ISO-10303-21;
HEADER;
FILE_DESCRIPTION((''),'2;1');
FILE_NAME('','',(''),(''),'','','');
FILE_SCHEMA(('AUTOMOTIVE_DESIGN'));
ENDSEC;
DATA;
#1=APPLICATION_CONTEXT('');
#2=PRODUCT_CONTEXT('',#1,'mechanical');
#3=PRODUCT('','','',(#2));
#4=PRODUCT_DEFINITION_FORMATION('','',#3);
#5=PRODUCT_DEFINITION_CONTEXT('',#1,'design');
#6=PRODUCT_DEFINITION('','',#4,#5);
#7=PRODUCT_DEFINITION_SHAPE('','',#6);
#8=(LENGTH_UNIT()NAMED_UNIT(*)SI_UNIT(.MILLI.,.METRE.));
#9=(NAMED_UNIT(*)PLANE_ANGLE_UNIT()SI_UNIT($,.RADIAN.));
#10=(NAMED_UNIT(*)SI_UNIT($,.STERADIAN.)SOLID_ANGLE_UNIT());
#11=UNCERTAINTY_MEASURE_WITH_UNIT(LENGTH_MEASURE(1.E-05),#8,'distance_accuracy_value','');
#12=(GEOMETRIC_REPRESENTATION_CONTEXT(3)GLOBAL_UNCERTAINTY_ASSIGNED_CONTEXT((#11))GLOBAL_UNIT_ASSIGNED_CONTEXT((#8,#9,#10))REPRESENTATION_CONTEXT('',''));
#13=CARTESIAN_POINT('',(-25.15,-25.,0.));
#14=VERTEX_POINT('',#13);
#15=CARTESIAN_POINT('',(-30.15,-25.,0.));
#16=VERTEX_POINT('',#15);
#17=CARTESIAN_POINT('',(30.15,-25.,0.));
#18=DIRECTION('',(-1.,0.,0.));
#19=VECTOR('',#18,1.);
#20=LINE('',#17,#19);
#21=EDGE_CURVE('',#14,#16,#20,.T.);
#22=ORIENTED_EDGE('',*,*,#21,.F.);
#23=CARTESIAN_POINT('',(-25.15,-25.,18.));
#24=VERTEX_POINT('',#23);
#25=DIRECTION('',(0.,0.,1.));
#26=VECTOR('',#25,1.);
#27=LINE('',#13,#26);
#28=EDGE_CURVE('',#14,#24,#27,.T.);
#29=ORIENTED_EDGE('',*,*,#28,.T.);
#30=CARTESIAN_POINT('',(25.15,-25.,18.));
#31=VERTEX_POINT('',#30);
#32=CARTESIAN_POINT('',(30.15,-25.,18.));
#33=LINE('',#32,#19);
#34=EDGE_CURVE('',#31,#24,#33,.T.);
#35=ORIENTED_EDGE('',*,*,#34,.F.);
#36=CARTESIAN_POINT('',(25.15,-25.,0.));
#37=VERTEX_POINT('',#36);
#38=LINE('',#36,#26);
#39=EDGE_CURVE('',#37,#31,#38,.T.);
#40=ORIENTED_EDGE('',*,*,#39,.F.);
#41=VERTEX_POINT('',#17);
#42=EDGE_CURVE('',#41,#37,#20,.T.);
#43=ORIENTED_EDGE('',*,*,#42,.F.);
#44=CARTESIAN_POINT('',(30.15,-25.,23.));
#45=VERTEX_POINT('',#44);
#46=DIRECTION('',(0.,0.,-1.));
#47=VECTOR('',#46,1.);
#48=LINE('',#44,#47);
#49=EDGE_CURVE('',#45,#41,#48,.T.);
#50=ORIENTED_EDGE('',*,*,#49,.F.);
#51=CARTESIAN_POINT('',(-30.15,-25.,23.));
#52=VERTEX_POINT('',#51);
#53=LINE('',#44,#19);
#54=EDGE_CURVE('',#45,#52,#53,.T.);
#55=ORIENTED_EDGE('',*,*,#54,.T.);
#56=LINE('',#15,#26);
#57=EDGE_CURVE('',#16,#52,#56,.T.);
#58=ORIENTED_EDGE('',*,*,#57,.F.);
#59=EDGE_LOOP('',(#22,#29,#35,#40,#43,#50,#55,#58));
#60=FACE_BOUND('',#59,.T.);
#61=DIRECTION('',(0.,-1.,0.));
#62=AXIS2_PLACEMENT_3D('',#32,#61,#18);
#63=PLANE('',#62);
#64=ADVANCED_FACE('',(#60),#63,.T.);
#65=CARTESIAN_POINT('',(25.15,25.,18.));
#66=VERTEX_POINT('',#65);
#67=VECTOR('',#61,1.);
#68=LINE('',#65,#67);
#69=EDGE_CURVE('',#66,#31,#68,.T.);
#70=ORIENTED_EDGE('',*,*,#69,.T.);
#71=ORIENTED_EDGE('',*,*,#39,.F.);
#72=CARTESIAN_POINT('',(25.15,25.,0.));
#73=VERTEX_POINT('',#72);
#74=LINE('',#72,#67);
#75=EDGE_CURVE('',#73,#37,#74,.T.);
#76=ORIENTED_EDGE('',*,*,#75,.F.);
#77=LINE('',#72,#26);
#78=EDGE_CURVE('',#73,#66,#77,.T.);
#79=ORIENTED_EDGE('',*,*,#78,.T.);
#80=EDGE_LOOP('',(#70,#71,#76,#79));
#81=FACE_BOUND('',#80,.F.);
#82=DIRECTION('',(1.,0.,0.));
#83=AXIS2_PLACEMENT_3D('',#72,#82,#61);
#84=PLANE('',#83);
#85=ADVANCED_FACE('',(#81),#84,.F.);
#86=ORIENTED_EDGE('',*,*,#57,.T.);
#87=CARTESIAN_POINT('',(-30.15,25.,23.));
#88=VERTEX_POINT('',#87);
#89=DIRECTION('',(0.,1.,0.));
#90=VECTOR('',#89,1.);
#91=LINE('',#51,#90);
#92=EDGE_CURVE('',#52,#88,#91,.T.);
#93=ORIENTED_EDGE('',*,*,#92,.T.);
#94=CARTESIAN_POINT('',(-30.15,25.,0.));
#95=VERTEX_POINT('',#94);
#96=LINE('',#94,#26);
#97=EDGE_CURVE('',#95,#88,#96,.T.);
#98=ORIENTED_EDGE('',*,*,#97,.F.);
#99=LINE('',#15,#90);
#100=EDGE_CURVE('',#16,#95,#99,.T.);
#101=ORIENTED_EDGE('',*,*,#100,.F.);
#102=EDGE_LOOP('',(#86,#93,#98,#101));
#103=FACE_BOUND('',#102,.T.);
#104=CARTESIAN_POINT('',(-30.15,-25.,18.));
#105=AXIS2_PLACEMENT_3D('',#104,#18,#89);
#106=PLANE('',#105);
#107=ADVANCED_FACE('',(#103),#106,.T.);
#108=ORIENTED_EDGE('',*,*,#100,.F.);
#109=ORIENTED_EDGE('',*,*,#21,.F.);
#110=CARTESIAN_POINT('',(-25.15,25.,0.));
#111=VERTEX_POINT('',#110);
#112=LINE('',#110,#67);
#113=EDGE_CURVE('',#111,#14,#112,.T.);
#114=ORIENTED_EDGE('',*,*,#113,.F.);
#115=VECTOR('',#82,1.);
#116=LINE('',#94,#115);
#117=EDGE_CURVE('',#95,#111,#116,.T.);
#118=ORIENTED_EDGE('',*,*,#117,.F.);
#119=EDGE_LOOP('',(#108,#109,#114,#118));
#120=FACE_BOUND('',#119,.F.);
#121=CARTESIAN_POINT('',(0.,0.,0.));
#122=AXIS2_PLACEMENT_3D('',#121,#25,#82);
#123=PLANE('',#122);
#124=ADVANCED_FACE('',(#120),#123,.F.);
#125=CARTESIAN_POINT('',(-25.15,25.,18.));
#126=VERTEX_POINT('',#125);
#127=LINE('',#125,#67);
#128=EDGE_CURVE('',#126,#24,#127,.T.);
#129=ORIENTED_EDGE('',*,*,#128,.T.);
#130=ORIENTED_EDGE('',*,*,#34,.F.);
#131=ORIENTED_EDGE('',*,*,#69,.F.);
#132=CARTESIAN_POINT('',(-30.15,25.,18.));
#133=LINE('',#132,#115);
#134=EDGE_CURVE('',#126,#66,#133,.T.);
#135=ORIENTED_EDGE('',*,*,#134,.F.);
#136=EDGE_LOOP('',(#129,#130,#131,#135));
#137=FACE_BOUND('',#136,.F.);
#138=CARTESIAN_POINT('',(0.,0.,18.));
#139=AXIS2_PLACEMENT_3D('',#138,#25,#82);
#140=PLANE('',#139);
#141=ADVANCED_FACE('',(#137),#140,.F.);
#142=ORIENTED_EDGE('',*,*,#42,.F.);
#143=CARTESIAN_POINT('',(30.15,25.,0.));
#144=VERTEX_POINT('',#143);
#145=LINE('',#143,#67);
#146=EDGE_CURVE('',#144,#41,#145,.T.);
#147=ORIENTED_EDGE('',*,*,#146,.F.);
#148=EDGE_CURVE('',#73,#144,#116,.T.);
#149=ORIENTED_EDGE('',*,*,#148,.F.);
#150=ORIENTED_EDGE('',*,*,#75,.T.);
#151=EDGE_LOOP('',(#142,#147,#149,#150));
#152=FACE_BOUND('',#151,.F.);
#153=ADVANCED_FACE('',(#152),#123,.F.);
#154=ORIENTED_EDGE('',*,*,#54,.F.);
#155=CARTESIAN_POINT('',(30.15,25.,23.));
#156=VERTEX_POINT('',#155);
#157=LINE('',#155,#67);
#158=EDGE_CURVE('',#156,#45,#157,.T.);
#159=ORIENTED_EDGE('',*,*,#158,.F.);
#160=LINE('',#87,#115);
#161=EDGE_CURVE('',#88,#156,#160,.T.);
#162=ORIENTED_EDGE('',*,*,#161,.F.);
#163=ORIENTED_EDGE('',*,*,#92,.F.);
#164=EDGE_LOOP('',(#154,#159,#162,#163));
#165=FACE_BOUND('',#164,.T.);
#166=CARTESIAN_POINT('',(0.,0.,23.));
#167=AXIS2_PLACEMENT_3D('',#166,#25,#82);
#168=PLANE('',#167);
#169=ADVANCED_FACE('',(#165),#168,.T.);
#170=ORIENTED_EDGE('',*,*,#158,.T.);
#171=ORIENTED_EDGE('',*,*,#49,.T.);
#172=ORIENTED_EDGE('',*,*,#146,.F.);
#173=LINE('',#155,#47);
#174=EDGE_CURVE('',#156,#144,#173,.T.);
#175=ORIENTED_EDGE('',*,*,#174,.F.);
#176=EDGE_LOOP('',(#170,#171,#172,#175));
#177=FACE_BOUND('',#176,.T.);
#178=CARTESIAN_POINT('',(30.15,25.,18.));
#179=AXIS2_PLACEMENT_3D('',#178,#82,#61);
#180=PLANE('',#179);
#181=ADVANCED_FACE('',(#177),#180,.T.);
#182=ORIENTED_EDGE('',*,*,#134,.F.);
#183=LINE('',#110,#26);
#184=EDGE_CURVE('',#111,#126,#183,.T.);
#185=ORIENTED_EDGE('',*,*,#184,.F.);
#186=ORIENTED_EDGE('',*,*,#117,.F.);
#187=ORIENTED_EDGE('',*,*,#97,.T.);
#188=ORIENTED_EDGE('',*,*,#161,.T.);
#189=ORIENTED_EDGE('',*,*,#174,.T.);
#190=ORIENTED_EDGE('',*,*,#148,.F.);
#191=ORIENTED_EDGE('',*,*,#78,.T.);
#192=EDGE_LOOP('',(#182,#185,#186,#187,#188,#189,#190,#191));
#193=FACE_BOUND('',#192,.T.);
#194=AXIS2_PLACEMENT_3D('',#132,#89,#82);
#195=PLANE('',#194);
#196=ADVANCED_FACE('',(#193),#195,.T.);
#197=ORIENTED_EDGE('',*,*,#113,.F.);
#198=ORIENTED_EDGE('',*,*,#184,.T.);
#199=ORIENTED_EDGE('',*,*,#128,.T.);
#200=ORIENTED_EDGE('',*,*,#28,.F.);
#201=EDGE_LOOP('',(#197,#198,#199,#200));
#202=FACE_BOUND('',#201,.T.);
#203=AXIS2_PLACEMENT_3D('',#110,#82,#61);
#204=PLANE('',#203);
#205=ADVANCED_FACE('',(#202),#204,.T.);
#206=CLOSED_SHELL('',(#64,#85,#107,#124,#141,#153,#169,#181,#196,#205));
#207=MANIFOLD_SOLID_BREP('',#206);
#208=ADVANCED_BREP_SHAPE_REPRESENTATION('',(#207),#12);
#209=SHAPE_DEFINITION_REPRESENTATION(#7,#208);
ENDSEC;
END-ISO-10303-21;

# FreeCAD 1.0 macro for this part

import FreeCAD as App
import Part
import Sketcher
from FreeCAD import Vector
Q = App.Units.Quantity


def add_polygon(sketch, points):
    """Adds a closed chain of lines whose ends are joined by coincident constraints."""
    first, n = sketch.GeometryCount, len(points)
    for a, b in zip(points, points[1:] + points[:1]):
        sketch.addGeometry(Part.LineSegment(App.Vector(*a, 0), App.Vector(*b, 0)), False)
    for i in range(n):
        sketch.addConstraint(Sketcher.Constraint("Coincident", first + i, 2, first + (i + 1) % n, 1))

doc = App.newDocument("Part")
body = doc.addObject("PartDesign::Body", "Body")
body.AllowCompound = True

sketch1 = doc.addObject("Sketcher::SketchObject", "Sketch")
body.addObject(sketch1)
sketch1.AttachmentSupport = (doc.XY_Plane, [""])
sketch1.MapMode = "FlatFace"
add_polygon(sketch1, [(-25, 25), (-30, 25), (-30, -25), (-25, -25)])
add_polygon(sketch1, [(30, 25), (25, 25), (25, -25), (30, -25)])
sketch1.addConstraint(Sketcher.Constraint("Horizontal", 0))
sketch1.addConstraint(Sketcher.Constraint("Vertical", 1))
sketch1.addConstraint(Sketcher.Constraint("Horizontal", 2))
sketch1.addConstraint(Sketcher.Constraint("Vertical", 3))
sketch1.addConstraint(Sketcher.Constraint("Horizontal", 4))
sketch1.addConstraint(Sketcher.Constraint("Vertical", 5))
sketch1.addConstraint(Sketcher.Constraint("Horizontal", 6))
sketch1.addConstraint(Sketcher.Constraint("Vertical", 7))
sketch1.addConstraint(Sketcher.Constraint("Symmetric", 2, 2, 4, 2, -1, 1))
sketch1.addConstraint(Sketcher.Constraint("Symmetric", 0, 2, 6, 2, -1, 1))
sketch1.addConstraint(Sketcher.Constraint("Horizontal", 3, 2, 4, 2))
sketch1.addConstraint(Sketcher.Constraint("DistanceX", 0, 2, 0, 1, Q("5 mm")))
sketch1.addConstraint(Sketcher.Constraint("DistanceY", 1, 2, 1, 1, Q("50 mm")))
sketch1.addConstraint(Sketcher.Constraint("DistanceX", 1, 2, 6, 2, Q("60.3 mm")))
pad1 = doc.addObject("PartDesign::Pad", "Pad")
body.addObject(pad1)
pad1.Profile = sketch1
pad1.Length = 18

sketch2 = doc.addObject("Sketcher::SketchObject", "Sketch001")
body.addObject(sketch2)
sketch2.AttachmentSupport = (doc.XY_Plane, [""])
sketch2.MapMode = "FlatFace"
sketch2.AttachmentOffset = App.Placement(Vector(0, 0, 18), App.Rotation())
add_polygon(sketch2, [(30, 25), (-30, 25), (-30, -25), (30, -25)])
sketch2.addConstraint(Sketcher.Constraint("Horizontal", 0))
sketch2.addConstraint(Sketcher.Constraint("Vertical", 1))
sketch2.addConstraint(Sketcher.Constraint("Horizontal", 2))
sketch2.addConstraint(Sketcher.Constraint("Vertical", 3))
sketch2.addConstraint(Sketcher.Constraint("Symmetric", 0, 2, 2, 2, -1, 1))
sketch2.addConstraint(Sketcher.Constraint("DistanceY", 1, 2, 1, 1, Q("50 mm")))
sketch2.addConstraint(Sketcher.Constraint("DistanceX", 0, 2, 0, 1, Q("60.3 mm")))
pad2 = doc.addObject("PartDesign::Pad", "Pad001")
body.addObject(pad2)
pad2.Profile = sketch2
pad2.Length = 5

doc.recompute()
